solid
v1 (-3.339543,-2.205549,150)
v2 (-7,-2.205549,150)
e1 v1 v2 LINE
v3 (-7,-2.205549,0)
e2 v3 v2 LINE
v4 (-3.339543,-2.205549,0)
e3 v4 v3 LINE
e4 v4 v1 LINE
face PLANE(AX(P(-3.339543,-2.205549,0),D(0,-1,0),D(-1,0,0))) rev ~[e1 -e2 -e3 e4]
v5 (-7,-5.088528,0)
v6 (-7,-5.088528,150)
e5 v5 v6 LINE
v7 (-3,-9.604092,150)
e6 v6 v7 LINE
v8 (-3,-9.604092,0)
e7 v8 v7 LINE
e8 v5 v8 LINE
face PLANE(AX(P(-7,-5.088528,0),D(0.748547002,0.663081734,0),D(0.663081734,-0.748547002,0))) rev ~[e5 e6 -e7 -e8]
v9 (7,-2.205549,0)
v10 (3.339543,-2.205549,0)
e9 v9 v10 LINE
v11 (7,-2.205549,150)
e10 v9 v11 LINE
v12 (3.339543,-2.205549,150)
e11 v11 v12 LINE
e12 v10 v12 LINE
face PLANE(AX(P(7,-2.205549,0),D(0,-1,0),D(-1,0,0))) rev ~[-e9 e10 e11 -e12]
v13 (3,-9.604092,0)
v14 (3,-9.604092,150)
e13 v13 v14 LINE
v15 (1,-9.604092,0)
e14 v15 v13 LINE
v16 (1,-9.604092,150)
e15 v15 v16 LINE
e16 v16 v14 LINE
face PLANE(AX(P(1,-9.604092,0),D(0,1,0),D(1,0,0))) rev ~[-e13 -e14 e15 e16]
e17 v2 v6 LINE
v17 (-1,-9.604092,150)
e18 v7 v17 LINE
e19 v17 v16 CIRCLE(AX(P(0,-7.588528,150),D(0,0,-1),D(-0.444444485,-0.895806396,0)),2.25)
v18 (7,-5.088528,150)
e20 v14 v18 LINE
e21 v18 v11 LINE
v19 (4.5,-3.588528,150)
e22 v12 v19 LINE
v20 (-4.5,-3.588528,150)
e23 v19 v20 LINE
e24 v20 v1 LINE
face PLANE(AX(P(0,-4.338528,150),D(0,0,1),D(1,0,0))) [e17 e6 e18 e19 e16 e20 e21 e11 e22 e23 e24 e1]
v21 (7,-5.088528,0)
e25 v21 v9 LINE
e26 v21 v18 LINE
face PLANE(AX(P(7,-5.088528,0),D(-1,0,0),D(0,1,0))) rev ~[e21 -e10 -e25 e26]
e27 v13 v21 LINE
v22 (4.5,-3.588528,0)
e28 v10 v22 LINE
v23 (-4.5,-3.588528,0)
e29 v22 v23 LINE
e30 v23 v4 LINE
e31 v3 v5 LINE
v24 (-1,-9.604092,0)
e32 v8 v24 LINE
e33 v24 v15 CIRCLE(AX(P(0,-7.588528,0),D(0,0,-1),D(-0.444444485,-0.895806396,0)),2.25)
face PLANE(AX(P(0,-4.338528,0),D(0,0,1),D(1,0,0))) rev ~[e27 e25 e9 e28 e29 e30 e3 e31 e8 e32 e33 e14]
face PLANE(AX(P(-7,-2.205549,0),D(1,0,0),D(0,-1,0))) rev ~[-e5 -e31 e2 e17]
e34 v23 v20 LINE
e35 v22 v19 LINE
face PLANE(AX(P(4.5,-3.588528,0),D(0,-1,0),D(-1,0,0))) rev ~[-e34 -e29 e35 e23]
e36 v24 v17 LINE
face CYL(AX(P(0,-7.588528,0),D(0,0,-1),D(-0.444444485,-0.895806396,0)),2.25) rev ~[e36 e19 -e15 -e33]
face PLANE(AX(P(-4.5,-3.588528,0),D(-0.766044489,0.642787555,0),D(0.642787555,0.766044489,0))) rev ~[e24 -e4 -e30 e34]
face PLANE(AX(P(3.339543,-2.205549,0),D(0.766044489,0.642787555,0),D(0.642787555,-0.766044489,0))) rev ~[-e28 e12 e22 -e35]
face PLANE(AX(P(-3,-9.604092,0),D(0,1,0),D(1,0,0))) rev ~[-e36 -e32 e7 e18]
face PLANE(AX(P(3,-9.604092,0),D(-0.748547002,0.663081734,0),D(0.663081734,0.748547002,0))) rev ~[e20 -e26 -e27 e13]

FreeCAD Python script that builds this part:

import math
import FreeCAD as App
import Part
import Sketcher

V = App.Vector
Q = App.Units.Quantity

doc = App.newDocument("Part")
params = doc.addObject("Spreadsheet::Sheet", "Params")
for row, (alias, value) in enumerate([
    ("sketch1_width", "9 mm"),
    ("sketch1_width2", "2 mm"),
    ("sketch1_radius", "2.25 mm"),
    ("pad1_length", "150 mm"),
], start=1):
    params.set(f"A{row}", alias)
    params.set(f"B{row}", "=" + value)
    params.setAlias(f"B{row}", alias)

body = doc.addObject("PartDesign::Body", "Body")

sketch1 = body.newObject("Sketcher::SketchObject", "Sketch")
sketch1.AttachmentSupport = (doc.getObject("XY_Plane"), [""])
sketch1.MapMode = "FlatFace"
sketch1.addGeometry([
    Part.LineSegment(V(7, -5.088528, 0), V(7, -2.205549, 0)),
    Part.LineSegment(V(7, -2.205549, 0), V(3.339543, -2.205549, 0)),
    Part.LineSegment(V(3.339543, -2.205549, 0), V(4.5, -3.588528, 0)),
    Part.LineSegment(V(4.5, -3.588528, 0), V(-4.5, -3.588528, 0)),
    Part.LineSegment(V(-4.5, -3.588528, 0), V(-3.339543, -2.205549, 0)),
    Part.LineSegment(V(-3.339543, -2.205549, 0), V(-7, -2.205549, 0)),
    Part.LineSegment(V(-7, -2.205549, 0), V(-7, -5.088528, 0)),
    Part.LineSegment(V(-7, -5.088528, 0), V(-3, -9.604092, 0)),
    Part.LineSegment(V(-3, -9.604092, 0), V(-1, -9.604092, 0)),
    Part.ArcOfCircle(Part.Circle(V(0, -7.588528, 0), V(0, 0, 1), 2.25), math.radians(-63.612197), math.radians(243.612197)),
    Part.LineSegment(V(1, -9.604092, 0), V(3, -9.604092, 0)),
    Part.LineSegment(V(3, -9.604092, 0), V(7, -5.088528, 0)),
], False)
sketch1.addConstraint([
    Sketcher.Constraint("Coincident", 0, 2, 1, 1),
    Sketcher.Constraint("Coincident", 1, 2, 2, 1),
    Sketcher.Constraint("Coincident", 2, 2, 3, 1),
    Sketcher.Constraint("Coincident", 3, 2, 4, 1),
    Sketcher.Constraint("Coincident", 4, 2, 5, 1),
    Sketcher.Constraint("Coincident", 5, 2, 6, 1),
    Sketcher.Constraint("Coincident", 6, 2, 7, 1),
    Sketcher.Constraint("Coincident", 7, 2, 8, 1),
    Sketcher.Constraint("Coincident", 8, 2, 9, 2),
    Sketcher.Constraint("Coincident", 9, 1, 10, 1),
    Sketcher.Constraint("Coincident", 10, 2, 11, 1),
    Sketcher.Constraint("Coincident", 11, 2, 0, 1),
    Sketcher.Constraint("Vertical", 0),
    Sketcher.Constraint("Horizontal", 1),
    Sketcher.Constraint("Horizontal", 3),
    Sketcher.Constraint("Horizontal", 5),
    Sketcher.Constraint("Vertical", 6),
    Sketcher.Constraint("Horizontal", 8),
    Sketcher.Constraint("Horizontal", 10),
    Sketcher.Constraint("Symmetric", 1, 2, 4, 2, -2),
    Sketcher.Constraint("Symmetric", 8, 2, 9, 1, -2),
    Sketcher.Constraint("Symmetric", 6, 2, 11, 2, -2),
    Sketcher.Constraint("Equal", 8, 10),
    Sketcher.Constraint("Equal", 2, 4),
    Sketcher.Constraint("DistanceX", 3, 2, 3, 1, 9.0),
    Sketcher.Constraint("DistanceX", 8, 1, 8, 2, 2.0),
    Sketcher.Constraint("Angle", 2, Q("-50.000004 deg")),
    Sketcher.Constraint("Radius", 9, 2.25),
    Sketcher.Constraint("DistanceX", -1, 1, 0, 2, 7.0),
    Sketcher.Constraint("DistanceX", 7, 2, -1, 1, 3.0),
    Sketcher.Constraint("DistanceY", 9, 3, 2, 2, 4.0),
    Sketcher.Constraint("DistanceY", 6, 2, 3, 2, 1.5),
    Sketcher.Constraint("DistanceY", 0, 1, 0, 2, 2.882979),
    Sketcher.Constraint("DistanceY", 0, 2, -1, 1, 2.205549),
])
sketch1.setExpression("Constraints[24]", "Params.sketch1_width")
sketch1.setExpression("Constraints[25]", "Params.sketch1_width2")
sketch1.setExpression("Constraints[27]", "Params.sketch1_radius")
pad1 = body.newObject("PartDesign::Pad", "Pad")
pad1.Profile = sketch1
pad1.setExpression("Length", "Params.pad1_length")

doc.recompute()
